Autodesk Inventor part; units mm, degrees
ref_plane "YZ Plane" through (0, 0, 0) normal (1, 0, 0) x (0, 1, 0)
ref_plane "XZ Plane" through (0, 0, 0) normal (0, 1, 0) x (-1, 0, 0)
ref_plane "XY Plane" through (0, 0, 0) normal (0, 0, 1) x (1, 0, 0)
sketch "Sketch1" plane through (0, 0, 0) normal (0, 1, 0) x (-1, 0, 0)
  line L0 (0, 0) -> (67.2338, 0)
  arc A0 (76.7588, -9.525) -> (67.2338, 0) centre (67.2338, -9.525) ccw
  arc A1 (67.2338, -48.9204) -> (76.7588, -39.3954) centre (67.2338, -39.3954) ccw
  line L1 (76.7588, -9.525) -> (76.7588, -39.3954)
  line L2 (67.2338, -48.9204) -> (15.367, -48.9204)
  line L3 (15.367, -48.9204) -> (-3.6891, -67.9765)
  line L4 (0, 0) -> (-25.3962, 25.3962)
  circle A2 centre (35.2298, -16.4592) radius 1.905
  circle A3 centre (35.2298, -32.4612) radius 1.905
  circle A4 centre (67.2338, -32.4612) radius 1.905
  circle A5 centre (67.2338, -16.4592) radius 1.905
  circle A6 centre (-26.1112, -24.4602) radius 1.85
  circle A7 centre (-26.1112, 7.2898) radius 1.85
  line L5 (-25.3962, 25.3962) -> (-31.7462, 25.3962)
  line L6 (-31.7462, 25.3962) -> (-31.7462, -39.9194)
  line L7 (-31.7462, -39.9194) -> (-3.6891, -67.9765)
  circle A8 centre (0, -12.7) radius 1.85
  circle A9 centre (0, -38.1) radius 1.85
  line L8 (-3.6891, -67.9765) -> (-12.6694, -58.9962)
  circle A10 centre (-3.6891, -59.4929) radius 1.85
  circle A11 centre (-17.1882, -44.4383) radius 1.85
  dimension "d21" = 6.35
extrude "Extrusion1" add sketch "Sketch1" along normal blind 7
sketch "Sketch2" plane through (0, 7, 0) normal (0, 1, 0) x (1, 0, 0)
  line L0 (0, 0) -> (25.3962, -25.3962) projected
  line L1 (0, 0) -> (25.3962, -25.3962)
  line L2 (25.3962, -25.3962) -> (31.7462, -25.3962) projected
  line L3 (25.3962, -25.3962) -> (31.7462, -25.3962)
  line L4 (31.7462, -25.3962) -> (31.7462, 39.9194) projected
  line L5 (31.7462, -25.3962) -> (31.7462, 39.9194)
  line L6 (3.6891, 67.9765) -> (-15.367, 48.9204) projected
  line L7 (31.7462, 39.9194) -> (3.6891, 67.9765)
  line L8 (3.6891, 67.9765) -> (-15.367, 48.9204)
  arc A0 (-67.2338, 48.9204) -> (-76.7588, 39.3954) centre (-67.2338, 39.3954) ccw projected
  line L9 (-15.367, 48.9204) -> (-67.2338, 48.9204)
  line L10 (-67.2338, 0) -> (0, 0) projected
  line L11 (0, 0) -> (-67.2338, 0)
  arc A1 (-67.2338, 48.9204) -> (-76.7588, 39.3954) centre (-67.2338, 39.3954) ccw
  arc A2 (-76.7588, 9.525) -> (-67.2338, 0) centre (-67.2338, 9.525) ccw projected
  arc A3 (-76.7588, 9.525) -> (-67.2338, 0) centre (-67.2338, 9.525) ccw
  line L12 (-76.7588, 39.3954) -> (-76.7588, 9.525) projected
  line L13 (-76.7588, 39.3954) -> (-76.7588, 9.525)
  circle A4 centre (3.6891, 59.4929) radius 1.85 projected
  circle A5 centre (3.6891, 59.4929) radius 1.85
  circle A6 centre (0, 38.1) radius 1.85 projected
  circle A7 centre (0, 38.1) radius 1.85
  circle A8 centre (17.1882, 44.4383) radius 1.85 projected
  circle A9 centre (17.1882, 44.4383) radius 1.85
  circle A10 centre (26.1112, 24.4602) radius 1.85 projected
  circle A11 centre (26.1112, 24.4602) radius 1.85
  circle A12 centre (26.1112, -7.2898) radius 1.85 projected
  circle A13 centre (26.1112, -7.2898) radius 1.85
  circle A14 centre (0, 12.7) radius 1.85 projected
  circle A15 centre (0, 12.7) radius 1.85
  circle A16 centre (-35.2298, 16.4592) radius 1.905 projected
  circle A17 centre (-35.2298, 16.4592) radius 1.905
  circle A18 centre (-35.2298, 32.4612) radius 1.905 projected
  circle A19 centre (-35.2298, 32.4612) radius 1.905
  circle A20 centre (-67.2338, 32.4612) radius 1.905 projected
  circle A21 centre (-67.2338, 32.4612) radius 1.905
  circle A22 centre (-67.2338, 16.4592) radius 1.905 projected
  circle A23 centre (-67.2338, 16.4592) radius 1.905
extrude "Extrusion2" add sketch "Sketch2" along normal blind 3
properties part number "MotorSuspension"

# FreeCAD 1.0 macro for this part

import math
import FreeCAD as App
import Part
import Sketcher
Q = App.Units.Quantity

doc = App.newDocument("Part")
body = doc.addObject("PartDesign::Body", "Body")

# Sketch on XZ plane
sketch1 = body.newObject("Sketcher::SketchObject", "Sketch")
sketch1.AttachmentSupport = (doc.getObject("XZ_Plane"), [""])
sketch1.MapMode = "FlatFace"
sketch1.addGeometry([
    Part.LineSegment(App.Vector(-67.2, 0, 0), App.Vector(0, 0, 0)),  # 0
    Part.LineSegment(App.Vector(0, 0, 0), App.Vector(25.4, 25.4, 0)),  # 1
    Part.LineSegment(App.Vector(25.4, 25.4, 0), App.Vector(31.7, 25.4, 0)),  # 2
    Part.LineSegment(App.Vector(31.7, 25.4, 0), App.Vector(31.7, -39.9, 0)),  # 3
    Part.LineSegment(App.Vector(31.7, -39.9, 0), App.Vector(3.7, -68, 0)),  # 4
    Part.LineSegment(App.Vector(3.7, -68, 0), App.Vector(-15.4, -48.9, 0)),  # 5
    Part.LineSegment(App.Vector(-15.4, -48.9, 0), App.Vector(-67.2, -48.9, 0)),  # 6
    Part.ArcOfCircle(Part.Circle(App.Vector(-67.2, -39.4, 0), App.Vector(0, 0, 1), 9.5), math.radians(180), math.radians(270)),  # 7
    Part.LineSegment(App.Vector(-76.8, -39.4, 0), App.Vector(-76.8, -9.5, 0)),  # 8
    Part.ArcOfCircle(Part.Circle(App.Vector(-67.2, -9.5, 0), App.Vector(0, 0, 1), 9.5), math.radians(90), math.radians(180)),  # 9
    Part.Circle(App.Vector(3.7, -59.5, 0), App.Vector(0, 0, 1), 1.9),  # 10
    Part.Circle(App.Vector(17.2, -44.4, 0), App.Vector(0, 0, 1), 1.9),  # 11
    Part.Circle(App.Vector(26.1, -24.5, 0), App.Vector(0, 0, 1), 1.9),  # 12
    Part.Circle(App.Vector(0, -38.1, 0), App.Vector(0, 0, 1), 1.9),  # 13
    Part.Circle(App.Vector(-35.2, -32.5, 0), App.Vector(0, 0, 1), 1.9),  # 14
    Part.Circle(App.Vector(-67.2, -32.5, 0), App.Vector(0, 0, 1), 1.9),  # 15
    Part.Circle(App.Vector(0, -12.7, 0), App.Vector(0, 0, 1), 1.9),  # 16
    Part.Circle(App.Vector(26.1, 7.3, 0), App.Vector(0, 0, 1), 1.9),  # 17
    Part.Circle(App.Vector(-35.2, -16.5, 0), App.Vector(0, 0, 1), 1.9),  # 18
    Part.Circle(App.Vector(-67.2, -16.5, 0), App.Vector(0, 0, 1), 1.9),  # 19
], False)
sketch1.addConstraint([
    Sketcher.Constraint("Coincident", 0, 2, 1, 1),
    Sketcher.Constraint("Coincident", 1, 2, 2, 1),
    Sketcher.Constraint("Coincident", 2, 2, 3, 1),
    Sketcher.Constraint("Coincident", 3, 2, 4, 1),
    Sketcher.Constraint("Coincident", 4, 2, 5, 1),
    Sketcher.Constraint("Coincident", 5, 2, 6, 1),
    Sketcher.Constraint("Tangent", 6, 2, 7, 2),
    Sketcher.Constraint("Tangent", 7, 1, 8, 1),
    Sketcher.Constraint("Tangent", 8, 2, 9, 2),
    Sketcher.Constraint("Tangent", 9, 1, 0, 1),
    Sketcher.Constraint("Horizontal", 0),
    Sketcher.Constraint("Horizontal", 2),
    Sketcher.Constraint("Vertical", 3),
    Sketcher.Constraint("Horizontal", 6),
    Sketcher.Constraint("Vertical", 8),
    Sketcher.Constraint("Coincident", 0, 2, -1, 1),
    Sketcher.Constraint("Equal", 7, 9),
    Sketcher.Constraint("Equal", 10, 11),
    Sketcher.Constraint("Equal", 11, 12),
    Sketcher.Constraint("Equal", 12, 13),
    Sketcher.Constraint("Equal", 14, 15),
    Sketcher.Constraint("Equal", 13, 16),
    Sketcher.Constraint("Equal", 16, 17),
    Sketcher.Constraint("Equal", 15, 18),
    Sketcher.Constraint("Equal", 18, 19),
    Sketcher.Constraint("PointOnObject", 13, 3, -2),
    Sketcher.Constraint("PointOnObject", 16, 3, -2),
    Sketcher.Constraint("Parallel", 1, 4),
    Sketcher.Constraint("Perpendicular", 4, 5),
    Sketcher.Constraint("Horizontal", 14, 3, 15, 3),
    Sketcher.Constraint("Horizontal", 18, 3, 19, 3),
    Sketcher.Constraint("Vertical", 9, 3, 15, 3),
    Sketcher.Constraint("Vertical", 12, 3, 17, 3),
    Sketcher.Constraint("Vertical", 14, 3, 18, 3),
    Sketcher.Constraint("Vertical", 15, 3, 19, 3),
    Sketcher.Constraint("Vertical", 10, 3, 4, 2),
    Sketcher.Constraint("DistanceX", 2, 1, 2, 2, Q("0.25 in")),
    Sketcher.Constraint("Diameter", 14, Q("0.15 in")),
    Sketcher.Constraint("Angle", 1, Q("45 deg")),
    Sketcher.Constraint("Radius", 7, Q("0.375 in")),
    Sketcher.Constraint("DistanceY", 13, 3, 16, 3, Q("1 in")),
    Sketcher.Constraint("DistanceY", 13, 3, -1, 1, Q("1.5 in")),
    Sketcher.Constraint("Diameter", 10, Q("3.7 mm")),
    Sketcher.Constraint("DistanceX", 0, 1, 0, 2, Q("2.647 in")),
    Sketcher.Constraint("DistanceX", 6, 2, 6, 1, Q("2.042 in")),
    Sketcher.Constraint("DistanceY", 8, 1, 8, 2, Q("1.176 in")),
    Sketcher.Constraint("DistanceX", 7, 3, 14, 3, Q("1.26 in")),
    Sketcher.Constraint("DistanceY", 12, 3, 17, 3, Q("1.25 in")),
    Sketcher.Constraint("DistanceY", 14, 3, 18, 3, Q("0.63 in")),
    Sketcher.Constraint("Distance", 1, Q("1.414 in")),
    Sketcher.Constraint("Distance", 5, Q("1.061 in")),
    Sketcher.Constraint("DistanceX", -1, 1, 12, 3, Q("1.028 in")),
    Sketcher.Constraint("DistanceY", 12, 3, -1, 1, Q("0.963 in")),
    Sketcher.Constraint("DistanceY", 14, 3, -1, 1, Q("1.278 in")),
    Sketcher.Constraint("DistanceY", 4, 2, 10, 3, Q("0.334 in")),
    Sketcher.Constraint("DistanceX", -1, 1, 11, 3, Q("0.6767 in")),
    Sketcher.Constraint("DistanceY", 10, 3, 11, 3, Q("0.5927 in")),
])
pad1 = body.newObject("PartDesign::Pad", "Pad")
pad1.Profile = sketch1
pad1.Length = Q("0.2755906 in")
pad1.Reversed = True

# Sketch on XZ plane
sketch2 = body.newObject("Sketcher::SketchObject", "Sketch001")
sketch2.AttachmentSupport = (doc.getObject("XZ_Plane"), [""])
sketch2.MapMode = "FlatFace"
sketch2.AttachmentOffset = App.Placement(App.Vector(0, 0, -0.2755906 * 25.4), App.Rotation())
sketch2.addGeometry([
    Part.LineSegment(App.Vector(-67.2, 0, 0), App.Vector(0, 0, 0)),  # 0
    Part.LineSegment(App.Vector(0, 0, 0), App.Vector(25.4, 25.4, 0)),  # 1
    Part.LineSegment(App.Vector(25.4, 25.4, 0), App.Vector(31.7, 25.4, 0)),  # 2
    Part.LineSegment(App.Vector(31.7, 25.4, 0), App.Vector(31.7, -39.9, 0)),  # 3
    Part.LineSegment(App.Vector(31.7, -39.9, 0), App.Vector(3.7, -68, 0)),  # 4
    Part.LineSegment(App.Vector(3.7, -68, 0), App.Vector(-15.4, -48.9, 0)),  # 5
    Part.LineSegment(App.Vector(-15.4, -48.9, 0), App.Vector(-67.2, -48.9, 0)),  # 6
    Part.ArcOfCircle(Part.Circle(App.Vector(-67.2, -39.4, 0), App.Vector(0, 0, 1), 9.5), math.radians(180), math.radians(270)),  # 7
    Part.LineSegment(App.Vector(-76.8, -39.4, 0), App.Vector(-76.8, -9.5, 0)),  # 8
    Part.ArcOfCircle(Part.Circle(App.Vector(-67.2, -9.5, 0), App.Vector(0, 0, 1), 9.5), math.radians(90), math.radians(180)),  # 9
    Part.Circle(App.Vector(-67.2, -16.5, 0), App.Vector(0, 0, 1), 1.9),  # 10
    Part.Circle(App.Vector(-35.2, -16.5, 0), App.Vector(0, 0, 1), 1.9),  # 11
    Part.Circle(App.Vector(26.1, 7.3, 0), App.Vector(0, 0, 1), 1.9),  # 12
    Part.Circle(App.Vector(0, -12.7, 0), App.Vector(0, 0, 1), 1.9),  # 13
    Part.Circle(App.Vector(-67.2, -32.5, 0), App.Vector(0, 0, 1), 1.9),  # 14
    Part.Circle(App.Vector(-35.2, -32.5, 0), App.Vector(0, 0, 1), 1.9),  # 15
    Part.Circle(App.Vector(0, -38.1, 0), App.Vector(0, 0, 1), 1.9),  # 16
    Part.Circle(App.Vector(26.1, -24.5, 0), App.Vector(0, 0, 1), 1.9),  # 17
    Part.Circle(App.Vector(17.2, -44.4, 0), App.Vector(0, 0, 1), 1.9),  # 18
    Part.Circle(App.Vector(3.7, -59.5, 0), App.Vector(0, 0, 1), 1.9),  # 19
], False)
sketch2.addConstraint([
    Sketcher.Constraint("Coincident", 0, 2, 1, 1),
    Sketcher.Constraint("Coincident", 1, 2, 2, 1),
    Sketcher.Constraint("Coincident", 2, 2, 3, 1),
    Sketcher.Constraint("Coincident", 3, 2, 4, 1),
    Sketcher.Constraint("Coincident", 4, 2, 5, 1),
    Sketcher.Constraint("Coincident", 5, 2, 6, 1),
    Sketcher.Constraint("Tangent", 6, 2, 7, 2),
    Sketcher.Constraint("Tangent", 7, 1, 8, 1),
    Sketcher.Constraint("Tangent", 8, 2, 9, 2),
    Sketcher.Constraint("Tangent", 9, 1, 0, 1),
    Sketcher.Constraint("Horizontal", 0),
    Sketcher.Constraint("Horizontal", 2),
    Sketcher.Constraint("Vertical", 3),
    Sketcher.Constraint("Horizontal", 6),
    Sketcher.Constraint("Vertical", 8),
    Sketcher.Constraint("Coincident", 0, 2, -1, 1),
    Sketcher.Constraint("Equal", 7, 9),
    Sketcher.Constraint("Equal", 10, 11),
    Sketcher.Constraint("Equal", 12, 13),
    Sketcher.Constraint("Equal", 11, 14),
    Sketcher.Constraint("Equal", 14, 15),
    Sketcher.Constraint("Equal", 13, 16),
    Sketcher.Constraint("Equal", 16, 17),
    Sketcher.Constraint("Equal", 17, 18),
    Sketcher.Constraint("Equal", 18, 19),
    Sketcher.Constraint("PointOnObject", 13, 3, -2),
    Sketcher.Constraint("PointOnObject", 16, 3, -2),
    Sketcher.Constraint("Parallel", 1, 4),
    Sketcher.Constraint("Perpendicular", 4, 5),
    Sketcher.Constraint("Horizontal", 10, 3, 11, 3),
    Sketcher.Constraint("Horizontal", 14, 3, 15, 3),
    Sketcher.Constraint("Vertical", 9, 3, 10, 3),
    Sketcher.Constraint("Vertical", 10, 3, 14, 3),
    Sketcher.Constraint("Vertical", 11, 3, 15, 3),
    Sketcher.Constraint("Vertical", 12, 3, 17, 3),
    Sketcher.Constraint("Vertical", 19, 3, 4, 2),
    Sketcher.Constraint("Diameter", 10, Q("0.15 in")),
    Sketcher.Constraint("Angle", 1, Q("45 deg")),
    Sketcher.Constraint("Radius", 7, Q("0.375 in")),
    Sketcher.Constraint("DistanceY", 16, 3, 13, 3, Q("1 in")),
    Sketcher.Constraint("DistanceX", 2, 1, 2, 2, Q("0.25 in")),
    Sketcher.Constraint("DistanceY", 13, 3, -1, 1, Q("0.5 in")),
    Sketcher.Constraint("Diameter", 12, Q("3.7 mm")),
    Sketcher.Constraint("DistanceX", 0, 1, 0, 2, Q("2.647 in")),
    Sketcher.Constraint("DistanceX", 6, 2, 6, 1, Q("2.042 in")),
    Sketcher.Constraint("DistanceY", 8, 1, 8, 2, Q("1.176 in")),
    Sketcher.Constraint("DistanceX", 10, 3, 11, 3, Q("1.26 in")),
    Sketcher.Constraint("DistanceY", 14, 3, 10, 3, Q("0.63 in")),
    Sketcher.Constraint("DistanceY", 17, 3, 12, 3, Q("1.25 in")),
    Sketcher.Constraint("Distance", 1, Q("1.414 in")),
    Sketcher.Constraint("Distance", 5, Q("1.061 in")),
    Sketcher.Constraint("DistanceY", 10, 3, -1, 1, Q("0.648 in")),
    Sketcher.Constraint("DistanceX", -1, 1, 12, 3, Q("1.028 in")),
    Sketcher.Constraint("DistanceY", -1, 1, 12, 3, Q("0.287 in")),
    Sketcher.Constraint("DistanceY", 4, 2, 19, 3, Q("0.334 in")),
    Sketcher.Constraint("DistanceX", -1, 1, 18, 3, Q("0.6767 in")),
    Sketcher.Constraint("DistanceY", 19, 3, 18, 3, Q("0.5927 in")),
])
pad2 = body.newObject("PartDesign::Pad", "Pad001")
pad2.Profile = sketch2
pad2.Length = Q("0.1181102 in")
pad2.Reversed = True

doc.recompute()
